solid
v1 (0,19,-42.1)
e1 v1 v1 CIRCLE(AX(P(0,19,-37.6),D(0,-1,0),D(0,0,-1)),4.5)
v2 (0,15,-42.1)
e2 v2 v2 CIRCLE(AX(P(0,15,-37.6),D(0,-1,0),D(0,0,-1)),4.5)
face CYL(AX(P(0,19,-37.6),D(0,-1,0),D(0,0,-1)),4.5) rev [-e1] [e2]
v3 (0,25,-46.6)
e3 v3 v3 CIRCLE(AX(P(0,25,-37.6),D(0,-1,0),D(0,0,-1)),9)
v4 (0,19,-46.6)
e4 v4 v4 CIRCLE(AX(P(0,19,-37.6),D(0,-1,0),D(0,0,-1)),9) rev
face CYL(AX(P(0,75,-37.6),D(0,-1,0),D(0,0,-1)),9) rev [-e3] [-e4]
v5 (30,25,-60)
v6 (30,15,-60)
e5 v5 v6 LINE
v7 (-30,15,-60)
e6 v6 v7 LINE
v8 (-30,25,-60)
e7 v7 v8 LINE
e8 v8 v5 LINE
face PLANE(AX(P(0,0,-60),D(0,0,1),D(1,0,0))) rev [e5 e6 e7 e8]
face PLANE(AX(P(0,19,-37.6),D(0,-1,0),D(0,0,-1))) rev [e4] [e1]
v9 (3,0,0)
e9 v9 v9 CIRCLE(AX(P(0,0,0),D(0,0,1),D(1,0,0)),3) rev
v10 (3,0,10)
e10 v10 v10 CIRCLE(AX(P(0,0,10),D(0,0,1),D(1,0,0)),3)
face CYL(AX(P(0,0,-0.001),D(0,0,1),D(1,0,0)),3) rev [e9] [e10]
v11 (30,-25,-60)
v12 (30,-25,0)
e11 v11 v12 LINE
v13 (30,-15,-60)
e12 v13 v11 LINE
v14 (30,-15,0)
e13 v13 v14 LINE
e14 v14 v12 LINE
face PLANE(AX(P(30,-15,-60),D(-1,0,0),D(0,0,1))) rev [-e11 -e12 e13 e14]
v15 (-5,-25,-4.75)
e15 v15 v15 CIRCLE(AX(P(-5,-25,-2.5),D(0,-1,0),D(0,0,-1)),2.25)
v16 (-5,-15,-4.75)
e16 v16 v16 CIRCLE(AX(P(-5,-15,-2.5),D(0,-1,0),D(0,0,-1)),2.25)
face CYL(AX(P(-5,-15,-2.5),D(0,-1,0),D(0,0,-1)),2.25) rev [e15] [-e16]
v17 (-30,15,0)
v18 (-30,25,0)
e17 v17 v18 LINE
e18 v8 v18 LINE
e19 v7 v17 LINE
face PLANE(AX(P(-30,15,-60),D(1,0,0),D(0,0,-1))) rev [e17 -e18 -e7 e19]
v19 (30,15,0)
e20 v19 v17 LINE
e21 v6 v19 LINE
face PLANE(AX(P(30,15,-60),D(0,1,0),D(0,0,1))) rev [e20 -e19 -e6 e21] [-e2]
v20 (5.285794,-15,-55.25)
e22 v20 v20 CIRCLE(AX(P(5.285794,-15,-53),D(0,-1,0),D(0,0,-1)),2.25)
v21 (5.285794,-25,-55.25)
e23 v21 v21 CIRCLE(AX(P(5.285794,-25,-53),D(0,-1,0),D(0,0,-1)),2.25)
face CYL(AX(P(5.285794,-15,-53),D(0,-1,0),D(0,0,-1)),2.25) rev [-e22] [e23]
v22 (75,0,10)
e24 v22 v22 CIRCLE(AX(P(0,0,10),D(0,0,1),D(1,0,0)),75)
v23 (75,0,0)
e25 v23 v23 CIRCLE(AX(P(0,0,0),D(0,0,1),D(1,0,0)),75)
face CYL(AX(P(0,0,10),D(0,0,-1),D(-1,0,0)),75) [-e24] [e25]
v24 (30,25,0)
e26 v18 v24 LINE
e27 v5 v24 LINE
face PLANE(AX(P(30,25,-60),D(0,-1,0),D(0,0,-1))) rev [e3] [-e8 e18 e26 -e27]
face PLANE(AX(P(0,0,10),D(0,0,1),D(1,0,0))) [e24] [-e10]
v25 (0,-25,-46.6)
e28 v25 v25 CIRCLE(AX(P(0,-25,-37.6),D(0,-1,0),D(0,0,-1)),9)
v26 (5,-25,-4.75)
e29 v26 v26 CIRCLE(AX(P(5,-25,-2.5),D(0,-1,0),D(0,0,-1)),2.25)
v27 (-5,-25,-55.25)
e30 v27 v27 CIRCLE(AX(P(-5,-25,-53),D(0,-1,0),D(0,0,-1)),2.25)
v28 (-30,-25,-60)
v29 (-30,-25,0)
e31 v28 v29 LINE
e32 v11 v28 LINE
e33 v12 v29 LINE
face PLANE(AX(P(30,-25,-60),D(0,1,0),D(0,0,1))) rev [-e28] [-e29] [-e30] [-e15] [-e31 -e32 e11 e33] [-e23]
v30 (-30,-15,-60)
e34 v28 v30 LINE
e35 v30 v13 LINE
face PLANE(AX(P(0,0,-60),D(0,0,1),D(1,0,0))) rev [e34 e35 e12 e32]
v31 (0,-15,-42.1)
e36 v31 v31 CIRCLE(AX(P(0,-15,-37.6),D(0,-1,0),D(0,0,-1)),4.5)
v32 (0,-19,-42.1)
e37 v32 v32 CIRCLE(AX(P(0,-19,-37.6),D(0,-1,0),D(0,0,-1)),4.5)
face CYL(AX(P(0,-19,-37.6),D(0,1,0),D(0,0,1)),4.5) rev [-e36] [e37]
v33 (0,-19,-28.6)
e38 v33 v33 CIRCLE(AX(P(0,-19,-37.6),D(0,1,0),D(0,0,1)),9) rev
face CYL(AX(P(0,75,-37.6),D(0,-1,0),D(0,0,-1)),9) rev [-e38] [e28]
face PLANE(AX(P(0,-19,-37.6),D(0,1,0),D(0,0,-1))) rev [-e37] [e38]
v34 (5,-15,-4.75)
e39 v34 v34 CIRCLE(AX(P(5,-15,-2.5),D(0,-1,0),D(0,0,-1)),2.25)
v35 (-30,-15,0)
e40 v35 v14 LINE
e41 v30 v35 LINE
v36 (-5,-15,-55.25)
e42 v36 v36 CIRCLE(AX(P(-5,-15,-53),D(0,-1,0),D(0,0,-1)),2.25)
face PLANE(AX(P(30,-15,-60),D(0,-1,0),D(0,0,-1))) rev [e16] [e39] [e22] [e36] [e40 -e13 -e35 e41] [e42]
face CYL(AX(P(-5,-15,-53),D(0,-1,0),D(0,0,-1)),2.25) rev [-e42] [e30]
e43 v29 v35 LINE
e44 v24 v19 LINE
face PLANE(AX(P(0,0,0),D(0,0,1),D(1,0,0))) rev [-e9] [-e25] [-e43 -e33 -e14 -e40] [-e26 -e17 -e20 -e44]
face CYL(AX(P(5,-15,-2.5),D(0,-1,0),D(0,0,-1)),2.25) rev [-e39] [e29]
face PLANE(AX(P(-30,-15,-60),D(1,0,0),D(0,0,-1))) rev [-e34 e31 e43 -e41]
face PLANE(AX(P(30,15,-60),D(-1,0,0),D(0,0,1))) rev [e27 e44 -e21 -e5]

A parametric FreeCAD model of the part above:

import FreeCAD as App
import Part
import Sketcher
Q = App.Units.Quantity


def add_polygon(sketch, points):
    """Adds a closed chain of lines whose ends are joined by coincident constraints."""
    first, n = sketch.GeometryCount, len(points)
    for a, b in zip(points, points[1:] + points[:1]):
        sketch.addGeometry(Part.LineSegment(App.Vector(*a, 0), App.Vector(*b, 0)), False)
    for i in range(n):
        sketch.addConstraint(Sketcher.Constraint("Coincident", first + i, 2, first + (i + 1) % n, 1))

doc = App.newDocument("Part")
body = doc.addObject("PartDesign::Body", "Body")

sketch1 = body.newObject("Sketcher::SketchObject", "Sketch")
sketch1.AttachmentSupport = (doc.getObject("XY_Plane"), [""])
sketch1.MapMode = "FlatFace"
sketch1.addGeometry(Part.Circle(App.Vector(0, 0, 0), App.Vector(0, 0, 1), 75), False)
sketch1.addConstraint([
    Sketcher.Constraint("Coincident", 0, 3, -1, 1),
    Sketcher.Constraint("Diameter", 0, Q("150 mm")),
])
pad1 = body.newObject("PartDesign::Pad", "Pad")
pad1.Profile = sketch1
pad1.Length = 10

sketch2 = body.newObject("Sketcher::SketchObject", "Sketch001")
sketch2.AttachmentSupport = (doc.getObject("XY_Plane"), [""])
sketch2.MapMode = "FlatFace"
sketch2.AttachmentOffset = App.Placement(App.Vector(0, 0, 10), App.Rotation())
sketch2.addGeometry(Part.Circle(App.Vector(0, 0, 0), App.Vector(0, 0, 1), 3), False)
sketch2.addConstraint([
    Sketcher.Constraint("Coincident", 0, 3, -1, 1),
    Sketcher.Constraint("Diameter", 0, Q("6 mm")),
])
pocket1 = body.newObject("PartDesign::Pocket", "Pocket")
pocket1.Profile = sketch2
pocket1.Type = "UpToFirst"

sketch3 = body.newObject("Sketcher::SketchObject", "Sketch002")
sketch3.AttachmentSupport = (doc.getObject("XY_Plane"), [""])
sketch3.MapMode = "FlatFace"
add_polygon(sketch3, [(30, 25), (30, 15), (-30, 15), (-30, 25)])
add_polygon(sketch3, [(30, -15), (30, -25), (-30, -25), (-30, -15)])
sketch3.addConstraint([
    Sketcher.Constraint("Vertical", 0),
    Sketcher.Constraint("Horizontal", 1),
    Sketcher.Constraint("Vertical", 2),
    Sketcher.Constraint("Horizontal", 3),
    Sketcher.Constraint("Vertical", 4),
    Sketcher.Constraint("Horizontal", 5),
    Sketcher.Constraint("Vertical", 6),
    Sketcher.Constraint("Horizontal", 7),
    Sketcher.Constraint("Symmetric", 2, 2, 4, 2, -1, 1),
    Sketcher.Constraint("Symmetric", 0, 2, 6, 2, -1, 1),
    Sketcher.Constraint("Vertical", 3, 2, 4, 2),
    Sketcher.Constraint("DistanceX", 1, 2, 1, 1, Q("60 mm")),
    Sketcher.Constraint("DistanceY", 0, 2, 0, 1, Q("10 mm")),
    Sketcher.Constraint("DistanceY", -1, 1, 0, 2, Q("15 mm")),
])
pad2 = body.newObject("PartDesign::Pad", "Pad001")
pad2.Profile = sketch3
pad2.Length = 60
pad2.Reversed = True

sketch4 = body.newObject("Sketcher::SketchObject", "Sketch003")
sketch4.AttachmentSupport = (doc.getObject("XZ_Plane"), [""])
sketch4.MapMode = "FlatFace"
sketch4.AttachmentOffset = App.Placement(App.Vector(0, 0, 25), App.Rotation())
sketch4.addGeometry(Part.Circle(App.Vector(0, -37.6, 0), App.Vector(0, 0, 1), 9), False)
sketch4.addConstraint([
    Sketcher.Constraint("PointOnObject", 0, 3, -2),
    Sketcher.Constraint("Diameter", 0, Q("18 mm")),
    Sketcher.Constraint("DistanceY", 0, 3, -1, 1, Q("37.6 mm")),
])
pocket2 = body.newObject("PartDesign::Pocket", "Pocket001")
pocket2.Profile = sketch4
pocket2.Type = "ThroughAll"

sketch5 = body.newObject("Sketcher::SketchObject", "Sketch004")
sketch5.AttachmentSupport = (doc.getObject("XZ_Plane"), [""])
sketch5.MapMode = "FlatFace"
sketch5.AttachmentOffset = App.Placement(App.Vector(0, 0, -15), App.Rotation())
sketch5.addGeometry([
    Part.Circle(App.Vector(0, -37.6, 0), App.Vector(0, 0, 1), 9),
    Part.Circle(App.Vector(0, -37.6, 0), App.Vector(0, 0, 1), 4.5),
], False)
sketch5.addConstraint([
    Sketcher.Constraint("Coincident", 1, 3, 0, 3),
    Sketcher.Constraint("PointOnObject", 0, 3, -2),
    Sketcher.Constraint("Diameter", 0, Q("18 mm")),
    Sketcher.Constraint("Diameter", 1, Q("9 mm")),
    Sketcher.Constraint("DistanceY", 0, 3, -1, 1, Q("37.6 mm")),
])
pad3 = body.newObject("PartDesign::Pad", "Pad002")
pad3.Profile = sketch5
pad3.Length = 4
pad3.Reversed = True

sketch6 = body.newObject("Sketcher::SketchObject", "Sketch005")
sketch6.AttachmentSupport = (doc.getObject("XZ_Plane"), [""])
sketch6.MapMode = "FlatFace"
sketch6.AttachmentOffset = App.Placement(App.Vector(0, 0, 25), App.Rotation())
sketch6.addGeometry([
    Part.Circle(App.Vector(-5, -2.5, 0), App.Vector(0, 0, 1), 2.25),
    Part.Circle(App.Vector(5, -2.5, 0), App.Vector(0, 0, 1), 2.25),
    Part.Circle(App.Vector(-5, -53, 0), App.Vector(0, 0, 1), 2.25),
    Part.Circle(App.Vector(5.285794, -53, 0), App.Vector(0, 0, 1), 2.25),
], False)
sketch6.addConstraint([
    Sketcher.Constraint("Equal", 0, 1),
    Sketcher.Constraint("Equal", 1, 2),
    Sketcher.Constraint("Equal", 2, 3),
    Sketcher.Constraint("Symmetric", 0, 3, 1, 3, -2),
    Sketcher.Constraint("Horizontal", 2, 3, 3, 3),
    Sketcher.Constraint("Vertical", 0, 3, 2, 3),
    Sketcher.Constraint("Diameter", 0, Q("4.5 mm")),
    Sketcher.Constraint("DistanceX", 0, 3, -1, 1, Q("5 mm")),
    Sketcher.Constraint("DistanceY", 2, 3, -1, 1, Q("53 mm")),
    Sketcher.Constraint("DistanceY", 0, 3, -1, 1, Q("2.5 mm")),
    Sketcher.Constraint("DistanceX", -1, 1, 3, 3, Q("5.285794 mm")),
])
pocket3 = body.newObject("PartDesign::Pocket", "Pocket002")
pocket3.Profile = sketch6
pocket3.Length = 10
doc.recompute()

mirrored = body.newObject("PartDesign::Mirrored", "Mirrored")
mirrored.Originals = [pad3]
mirrored.MirrorPlane = (doc.getObject("XZ_Plane"), [""])
body.Tip = mirrored

doc.recompute()
